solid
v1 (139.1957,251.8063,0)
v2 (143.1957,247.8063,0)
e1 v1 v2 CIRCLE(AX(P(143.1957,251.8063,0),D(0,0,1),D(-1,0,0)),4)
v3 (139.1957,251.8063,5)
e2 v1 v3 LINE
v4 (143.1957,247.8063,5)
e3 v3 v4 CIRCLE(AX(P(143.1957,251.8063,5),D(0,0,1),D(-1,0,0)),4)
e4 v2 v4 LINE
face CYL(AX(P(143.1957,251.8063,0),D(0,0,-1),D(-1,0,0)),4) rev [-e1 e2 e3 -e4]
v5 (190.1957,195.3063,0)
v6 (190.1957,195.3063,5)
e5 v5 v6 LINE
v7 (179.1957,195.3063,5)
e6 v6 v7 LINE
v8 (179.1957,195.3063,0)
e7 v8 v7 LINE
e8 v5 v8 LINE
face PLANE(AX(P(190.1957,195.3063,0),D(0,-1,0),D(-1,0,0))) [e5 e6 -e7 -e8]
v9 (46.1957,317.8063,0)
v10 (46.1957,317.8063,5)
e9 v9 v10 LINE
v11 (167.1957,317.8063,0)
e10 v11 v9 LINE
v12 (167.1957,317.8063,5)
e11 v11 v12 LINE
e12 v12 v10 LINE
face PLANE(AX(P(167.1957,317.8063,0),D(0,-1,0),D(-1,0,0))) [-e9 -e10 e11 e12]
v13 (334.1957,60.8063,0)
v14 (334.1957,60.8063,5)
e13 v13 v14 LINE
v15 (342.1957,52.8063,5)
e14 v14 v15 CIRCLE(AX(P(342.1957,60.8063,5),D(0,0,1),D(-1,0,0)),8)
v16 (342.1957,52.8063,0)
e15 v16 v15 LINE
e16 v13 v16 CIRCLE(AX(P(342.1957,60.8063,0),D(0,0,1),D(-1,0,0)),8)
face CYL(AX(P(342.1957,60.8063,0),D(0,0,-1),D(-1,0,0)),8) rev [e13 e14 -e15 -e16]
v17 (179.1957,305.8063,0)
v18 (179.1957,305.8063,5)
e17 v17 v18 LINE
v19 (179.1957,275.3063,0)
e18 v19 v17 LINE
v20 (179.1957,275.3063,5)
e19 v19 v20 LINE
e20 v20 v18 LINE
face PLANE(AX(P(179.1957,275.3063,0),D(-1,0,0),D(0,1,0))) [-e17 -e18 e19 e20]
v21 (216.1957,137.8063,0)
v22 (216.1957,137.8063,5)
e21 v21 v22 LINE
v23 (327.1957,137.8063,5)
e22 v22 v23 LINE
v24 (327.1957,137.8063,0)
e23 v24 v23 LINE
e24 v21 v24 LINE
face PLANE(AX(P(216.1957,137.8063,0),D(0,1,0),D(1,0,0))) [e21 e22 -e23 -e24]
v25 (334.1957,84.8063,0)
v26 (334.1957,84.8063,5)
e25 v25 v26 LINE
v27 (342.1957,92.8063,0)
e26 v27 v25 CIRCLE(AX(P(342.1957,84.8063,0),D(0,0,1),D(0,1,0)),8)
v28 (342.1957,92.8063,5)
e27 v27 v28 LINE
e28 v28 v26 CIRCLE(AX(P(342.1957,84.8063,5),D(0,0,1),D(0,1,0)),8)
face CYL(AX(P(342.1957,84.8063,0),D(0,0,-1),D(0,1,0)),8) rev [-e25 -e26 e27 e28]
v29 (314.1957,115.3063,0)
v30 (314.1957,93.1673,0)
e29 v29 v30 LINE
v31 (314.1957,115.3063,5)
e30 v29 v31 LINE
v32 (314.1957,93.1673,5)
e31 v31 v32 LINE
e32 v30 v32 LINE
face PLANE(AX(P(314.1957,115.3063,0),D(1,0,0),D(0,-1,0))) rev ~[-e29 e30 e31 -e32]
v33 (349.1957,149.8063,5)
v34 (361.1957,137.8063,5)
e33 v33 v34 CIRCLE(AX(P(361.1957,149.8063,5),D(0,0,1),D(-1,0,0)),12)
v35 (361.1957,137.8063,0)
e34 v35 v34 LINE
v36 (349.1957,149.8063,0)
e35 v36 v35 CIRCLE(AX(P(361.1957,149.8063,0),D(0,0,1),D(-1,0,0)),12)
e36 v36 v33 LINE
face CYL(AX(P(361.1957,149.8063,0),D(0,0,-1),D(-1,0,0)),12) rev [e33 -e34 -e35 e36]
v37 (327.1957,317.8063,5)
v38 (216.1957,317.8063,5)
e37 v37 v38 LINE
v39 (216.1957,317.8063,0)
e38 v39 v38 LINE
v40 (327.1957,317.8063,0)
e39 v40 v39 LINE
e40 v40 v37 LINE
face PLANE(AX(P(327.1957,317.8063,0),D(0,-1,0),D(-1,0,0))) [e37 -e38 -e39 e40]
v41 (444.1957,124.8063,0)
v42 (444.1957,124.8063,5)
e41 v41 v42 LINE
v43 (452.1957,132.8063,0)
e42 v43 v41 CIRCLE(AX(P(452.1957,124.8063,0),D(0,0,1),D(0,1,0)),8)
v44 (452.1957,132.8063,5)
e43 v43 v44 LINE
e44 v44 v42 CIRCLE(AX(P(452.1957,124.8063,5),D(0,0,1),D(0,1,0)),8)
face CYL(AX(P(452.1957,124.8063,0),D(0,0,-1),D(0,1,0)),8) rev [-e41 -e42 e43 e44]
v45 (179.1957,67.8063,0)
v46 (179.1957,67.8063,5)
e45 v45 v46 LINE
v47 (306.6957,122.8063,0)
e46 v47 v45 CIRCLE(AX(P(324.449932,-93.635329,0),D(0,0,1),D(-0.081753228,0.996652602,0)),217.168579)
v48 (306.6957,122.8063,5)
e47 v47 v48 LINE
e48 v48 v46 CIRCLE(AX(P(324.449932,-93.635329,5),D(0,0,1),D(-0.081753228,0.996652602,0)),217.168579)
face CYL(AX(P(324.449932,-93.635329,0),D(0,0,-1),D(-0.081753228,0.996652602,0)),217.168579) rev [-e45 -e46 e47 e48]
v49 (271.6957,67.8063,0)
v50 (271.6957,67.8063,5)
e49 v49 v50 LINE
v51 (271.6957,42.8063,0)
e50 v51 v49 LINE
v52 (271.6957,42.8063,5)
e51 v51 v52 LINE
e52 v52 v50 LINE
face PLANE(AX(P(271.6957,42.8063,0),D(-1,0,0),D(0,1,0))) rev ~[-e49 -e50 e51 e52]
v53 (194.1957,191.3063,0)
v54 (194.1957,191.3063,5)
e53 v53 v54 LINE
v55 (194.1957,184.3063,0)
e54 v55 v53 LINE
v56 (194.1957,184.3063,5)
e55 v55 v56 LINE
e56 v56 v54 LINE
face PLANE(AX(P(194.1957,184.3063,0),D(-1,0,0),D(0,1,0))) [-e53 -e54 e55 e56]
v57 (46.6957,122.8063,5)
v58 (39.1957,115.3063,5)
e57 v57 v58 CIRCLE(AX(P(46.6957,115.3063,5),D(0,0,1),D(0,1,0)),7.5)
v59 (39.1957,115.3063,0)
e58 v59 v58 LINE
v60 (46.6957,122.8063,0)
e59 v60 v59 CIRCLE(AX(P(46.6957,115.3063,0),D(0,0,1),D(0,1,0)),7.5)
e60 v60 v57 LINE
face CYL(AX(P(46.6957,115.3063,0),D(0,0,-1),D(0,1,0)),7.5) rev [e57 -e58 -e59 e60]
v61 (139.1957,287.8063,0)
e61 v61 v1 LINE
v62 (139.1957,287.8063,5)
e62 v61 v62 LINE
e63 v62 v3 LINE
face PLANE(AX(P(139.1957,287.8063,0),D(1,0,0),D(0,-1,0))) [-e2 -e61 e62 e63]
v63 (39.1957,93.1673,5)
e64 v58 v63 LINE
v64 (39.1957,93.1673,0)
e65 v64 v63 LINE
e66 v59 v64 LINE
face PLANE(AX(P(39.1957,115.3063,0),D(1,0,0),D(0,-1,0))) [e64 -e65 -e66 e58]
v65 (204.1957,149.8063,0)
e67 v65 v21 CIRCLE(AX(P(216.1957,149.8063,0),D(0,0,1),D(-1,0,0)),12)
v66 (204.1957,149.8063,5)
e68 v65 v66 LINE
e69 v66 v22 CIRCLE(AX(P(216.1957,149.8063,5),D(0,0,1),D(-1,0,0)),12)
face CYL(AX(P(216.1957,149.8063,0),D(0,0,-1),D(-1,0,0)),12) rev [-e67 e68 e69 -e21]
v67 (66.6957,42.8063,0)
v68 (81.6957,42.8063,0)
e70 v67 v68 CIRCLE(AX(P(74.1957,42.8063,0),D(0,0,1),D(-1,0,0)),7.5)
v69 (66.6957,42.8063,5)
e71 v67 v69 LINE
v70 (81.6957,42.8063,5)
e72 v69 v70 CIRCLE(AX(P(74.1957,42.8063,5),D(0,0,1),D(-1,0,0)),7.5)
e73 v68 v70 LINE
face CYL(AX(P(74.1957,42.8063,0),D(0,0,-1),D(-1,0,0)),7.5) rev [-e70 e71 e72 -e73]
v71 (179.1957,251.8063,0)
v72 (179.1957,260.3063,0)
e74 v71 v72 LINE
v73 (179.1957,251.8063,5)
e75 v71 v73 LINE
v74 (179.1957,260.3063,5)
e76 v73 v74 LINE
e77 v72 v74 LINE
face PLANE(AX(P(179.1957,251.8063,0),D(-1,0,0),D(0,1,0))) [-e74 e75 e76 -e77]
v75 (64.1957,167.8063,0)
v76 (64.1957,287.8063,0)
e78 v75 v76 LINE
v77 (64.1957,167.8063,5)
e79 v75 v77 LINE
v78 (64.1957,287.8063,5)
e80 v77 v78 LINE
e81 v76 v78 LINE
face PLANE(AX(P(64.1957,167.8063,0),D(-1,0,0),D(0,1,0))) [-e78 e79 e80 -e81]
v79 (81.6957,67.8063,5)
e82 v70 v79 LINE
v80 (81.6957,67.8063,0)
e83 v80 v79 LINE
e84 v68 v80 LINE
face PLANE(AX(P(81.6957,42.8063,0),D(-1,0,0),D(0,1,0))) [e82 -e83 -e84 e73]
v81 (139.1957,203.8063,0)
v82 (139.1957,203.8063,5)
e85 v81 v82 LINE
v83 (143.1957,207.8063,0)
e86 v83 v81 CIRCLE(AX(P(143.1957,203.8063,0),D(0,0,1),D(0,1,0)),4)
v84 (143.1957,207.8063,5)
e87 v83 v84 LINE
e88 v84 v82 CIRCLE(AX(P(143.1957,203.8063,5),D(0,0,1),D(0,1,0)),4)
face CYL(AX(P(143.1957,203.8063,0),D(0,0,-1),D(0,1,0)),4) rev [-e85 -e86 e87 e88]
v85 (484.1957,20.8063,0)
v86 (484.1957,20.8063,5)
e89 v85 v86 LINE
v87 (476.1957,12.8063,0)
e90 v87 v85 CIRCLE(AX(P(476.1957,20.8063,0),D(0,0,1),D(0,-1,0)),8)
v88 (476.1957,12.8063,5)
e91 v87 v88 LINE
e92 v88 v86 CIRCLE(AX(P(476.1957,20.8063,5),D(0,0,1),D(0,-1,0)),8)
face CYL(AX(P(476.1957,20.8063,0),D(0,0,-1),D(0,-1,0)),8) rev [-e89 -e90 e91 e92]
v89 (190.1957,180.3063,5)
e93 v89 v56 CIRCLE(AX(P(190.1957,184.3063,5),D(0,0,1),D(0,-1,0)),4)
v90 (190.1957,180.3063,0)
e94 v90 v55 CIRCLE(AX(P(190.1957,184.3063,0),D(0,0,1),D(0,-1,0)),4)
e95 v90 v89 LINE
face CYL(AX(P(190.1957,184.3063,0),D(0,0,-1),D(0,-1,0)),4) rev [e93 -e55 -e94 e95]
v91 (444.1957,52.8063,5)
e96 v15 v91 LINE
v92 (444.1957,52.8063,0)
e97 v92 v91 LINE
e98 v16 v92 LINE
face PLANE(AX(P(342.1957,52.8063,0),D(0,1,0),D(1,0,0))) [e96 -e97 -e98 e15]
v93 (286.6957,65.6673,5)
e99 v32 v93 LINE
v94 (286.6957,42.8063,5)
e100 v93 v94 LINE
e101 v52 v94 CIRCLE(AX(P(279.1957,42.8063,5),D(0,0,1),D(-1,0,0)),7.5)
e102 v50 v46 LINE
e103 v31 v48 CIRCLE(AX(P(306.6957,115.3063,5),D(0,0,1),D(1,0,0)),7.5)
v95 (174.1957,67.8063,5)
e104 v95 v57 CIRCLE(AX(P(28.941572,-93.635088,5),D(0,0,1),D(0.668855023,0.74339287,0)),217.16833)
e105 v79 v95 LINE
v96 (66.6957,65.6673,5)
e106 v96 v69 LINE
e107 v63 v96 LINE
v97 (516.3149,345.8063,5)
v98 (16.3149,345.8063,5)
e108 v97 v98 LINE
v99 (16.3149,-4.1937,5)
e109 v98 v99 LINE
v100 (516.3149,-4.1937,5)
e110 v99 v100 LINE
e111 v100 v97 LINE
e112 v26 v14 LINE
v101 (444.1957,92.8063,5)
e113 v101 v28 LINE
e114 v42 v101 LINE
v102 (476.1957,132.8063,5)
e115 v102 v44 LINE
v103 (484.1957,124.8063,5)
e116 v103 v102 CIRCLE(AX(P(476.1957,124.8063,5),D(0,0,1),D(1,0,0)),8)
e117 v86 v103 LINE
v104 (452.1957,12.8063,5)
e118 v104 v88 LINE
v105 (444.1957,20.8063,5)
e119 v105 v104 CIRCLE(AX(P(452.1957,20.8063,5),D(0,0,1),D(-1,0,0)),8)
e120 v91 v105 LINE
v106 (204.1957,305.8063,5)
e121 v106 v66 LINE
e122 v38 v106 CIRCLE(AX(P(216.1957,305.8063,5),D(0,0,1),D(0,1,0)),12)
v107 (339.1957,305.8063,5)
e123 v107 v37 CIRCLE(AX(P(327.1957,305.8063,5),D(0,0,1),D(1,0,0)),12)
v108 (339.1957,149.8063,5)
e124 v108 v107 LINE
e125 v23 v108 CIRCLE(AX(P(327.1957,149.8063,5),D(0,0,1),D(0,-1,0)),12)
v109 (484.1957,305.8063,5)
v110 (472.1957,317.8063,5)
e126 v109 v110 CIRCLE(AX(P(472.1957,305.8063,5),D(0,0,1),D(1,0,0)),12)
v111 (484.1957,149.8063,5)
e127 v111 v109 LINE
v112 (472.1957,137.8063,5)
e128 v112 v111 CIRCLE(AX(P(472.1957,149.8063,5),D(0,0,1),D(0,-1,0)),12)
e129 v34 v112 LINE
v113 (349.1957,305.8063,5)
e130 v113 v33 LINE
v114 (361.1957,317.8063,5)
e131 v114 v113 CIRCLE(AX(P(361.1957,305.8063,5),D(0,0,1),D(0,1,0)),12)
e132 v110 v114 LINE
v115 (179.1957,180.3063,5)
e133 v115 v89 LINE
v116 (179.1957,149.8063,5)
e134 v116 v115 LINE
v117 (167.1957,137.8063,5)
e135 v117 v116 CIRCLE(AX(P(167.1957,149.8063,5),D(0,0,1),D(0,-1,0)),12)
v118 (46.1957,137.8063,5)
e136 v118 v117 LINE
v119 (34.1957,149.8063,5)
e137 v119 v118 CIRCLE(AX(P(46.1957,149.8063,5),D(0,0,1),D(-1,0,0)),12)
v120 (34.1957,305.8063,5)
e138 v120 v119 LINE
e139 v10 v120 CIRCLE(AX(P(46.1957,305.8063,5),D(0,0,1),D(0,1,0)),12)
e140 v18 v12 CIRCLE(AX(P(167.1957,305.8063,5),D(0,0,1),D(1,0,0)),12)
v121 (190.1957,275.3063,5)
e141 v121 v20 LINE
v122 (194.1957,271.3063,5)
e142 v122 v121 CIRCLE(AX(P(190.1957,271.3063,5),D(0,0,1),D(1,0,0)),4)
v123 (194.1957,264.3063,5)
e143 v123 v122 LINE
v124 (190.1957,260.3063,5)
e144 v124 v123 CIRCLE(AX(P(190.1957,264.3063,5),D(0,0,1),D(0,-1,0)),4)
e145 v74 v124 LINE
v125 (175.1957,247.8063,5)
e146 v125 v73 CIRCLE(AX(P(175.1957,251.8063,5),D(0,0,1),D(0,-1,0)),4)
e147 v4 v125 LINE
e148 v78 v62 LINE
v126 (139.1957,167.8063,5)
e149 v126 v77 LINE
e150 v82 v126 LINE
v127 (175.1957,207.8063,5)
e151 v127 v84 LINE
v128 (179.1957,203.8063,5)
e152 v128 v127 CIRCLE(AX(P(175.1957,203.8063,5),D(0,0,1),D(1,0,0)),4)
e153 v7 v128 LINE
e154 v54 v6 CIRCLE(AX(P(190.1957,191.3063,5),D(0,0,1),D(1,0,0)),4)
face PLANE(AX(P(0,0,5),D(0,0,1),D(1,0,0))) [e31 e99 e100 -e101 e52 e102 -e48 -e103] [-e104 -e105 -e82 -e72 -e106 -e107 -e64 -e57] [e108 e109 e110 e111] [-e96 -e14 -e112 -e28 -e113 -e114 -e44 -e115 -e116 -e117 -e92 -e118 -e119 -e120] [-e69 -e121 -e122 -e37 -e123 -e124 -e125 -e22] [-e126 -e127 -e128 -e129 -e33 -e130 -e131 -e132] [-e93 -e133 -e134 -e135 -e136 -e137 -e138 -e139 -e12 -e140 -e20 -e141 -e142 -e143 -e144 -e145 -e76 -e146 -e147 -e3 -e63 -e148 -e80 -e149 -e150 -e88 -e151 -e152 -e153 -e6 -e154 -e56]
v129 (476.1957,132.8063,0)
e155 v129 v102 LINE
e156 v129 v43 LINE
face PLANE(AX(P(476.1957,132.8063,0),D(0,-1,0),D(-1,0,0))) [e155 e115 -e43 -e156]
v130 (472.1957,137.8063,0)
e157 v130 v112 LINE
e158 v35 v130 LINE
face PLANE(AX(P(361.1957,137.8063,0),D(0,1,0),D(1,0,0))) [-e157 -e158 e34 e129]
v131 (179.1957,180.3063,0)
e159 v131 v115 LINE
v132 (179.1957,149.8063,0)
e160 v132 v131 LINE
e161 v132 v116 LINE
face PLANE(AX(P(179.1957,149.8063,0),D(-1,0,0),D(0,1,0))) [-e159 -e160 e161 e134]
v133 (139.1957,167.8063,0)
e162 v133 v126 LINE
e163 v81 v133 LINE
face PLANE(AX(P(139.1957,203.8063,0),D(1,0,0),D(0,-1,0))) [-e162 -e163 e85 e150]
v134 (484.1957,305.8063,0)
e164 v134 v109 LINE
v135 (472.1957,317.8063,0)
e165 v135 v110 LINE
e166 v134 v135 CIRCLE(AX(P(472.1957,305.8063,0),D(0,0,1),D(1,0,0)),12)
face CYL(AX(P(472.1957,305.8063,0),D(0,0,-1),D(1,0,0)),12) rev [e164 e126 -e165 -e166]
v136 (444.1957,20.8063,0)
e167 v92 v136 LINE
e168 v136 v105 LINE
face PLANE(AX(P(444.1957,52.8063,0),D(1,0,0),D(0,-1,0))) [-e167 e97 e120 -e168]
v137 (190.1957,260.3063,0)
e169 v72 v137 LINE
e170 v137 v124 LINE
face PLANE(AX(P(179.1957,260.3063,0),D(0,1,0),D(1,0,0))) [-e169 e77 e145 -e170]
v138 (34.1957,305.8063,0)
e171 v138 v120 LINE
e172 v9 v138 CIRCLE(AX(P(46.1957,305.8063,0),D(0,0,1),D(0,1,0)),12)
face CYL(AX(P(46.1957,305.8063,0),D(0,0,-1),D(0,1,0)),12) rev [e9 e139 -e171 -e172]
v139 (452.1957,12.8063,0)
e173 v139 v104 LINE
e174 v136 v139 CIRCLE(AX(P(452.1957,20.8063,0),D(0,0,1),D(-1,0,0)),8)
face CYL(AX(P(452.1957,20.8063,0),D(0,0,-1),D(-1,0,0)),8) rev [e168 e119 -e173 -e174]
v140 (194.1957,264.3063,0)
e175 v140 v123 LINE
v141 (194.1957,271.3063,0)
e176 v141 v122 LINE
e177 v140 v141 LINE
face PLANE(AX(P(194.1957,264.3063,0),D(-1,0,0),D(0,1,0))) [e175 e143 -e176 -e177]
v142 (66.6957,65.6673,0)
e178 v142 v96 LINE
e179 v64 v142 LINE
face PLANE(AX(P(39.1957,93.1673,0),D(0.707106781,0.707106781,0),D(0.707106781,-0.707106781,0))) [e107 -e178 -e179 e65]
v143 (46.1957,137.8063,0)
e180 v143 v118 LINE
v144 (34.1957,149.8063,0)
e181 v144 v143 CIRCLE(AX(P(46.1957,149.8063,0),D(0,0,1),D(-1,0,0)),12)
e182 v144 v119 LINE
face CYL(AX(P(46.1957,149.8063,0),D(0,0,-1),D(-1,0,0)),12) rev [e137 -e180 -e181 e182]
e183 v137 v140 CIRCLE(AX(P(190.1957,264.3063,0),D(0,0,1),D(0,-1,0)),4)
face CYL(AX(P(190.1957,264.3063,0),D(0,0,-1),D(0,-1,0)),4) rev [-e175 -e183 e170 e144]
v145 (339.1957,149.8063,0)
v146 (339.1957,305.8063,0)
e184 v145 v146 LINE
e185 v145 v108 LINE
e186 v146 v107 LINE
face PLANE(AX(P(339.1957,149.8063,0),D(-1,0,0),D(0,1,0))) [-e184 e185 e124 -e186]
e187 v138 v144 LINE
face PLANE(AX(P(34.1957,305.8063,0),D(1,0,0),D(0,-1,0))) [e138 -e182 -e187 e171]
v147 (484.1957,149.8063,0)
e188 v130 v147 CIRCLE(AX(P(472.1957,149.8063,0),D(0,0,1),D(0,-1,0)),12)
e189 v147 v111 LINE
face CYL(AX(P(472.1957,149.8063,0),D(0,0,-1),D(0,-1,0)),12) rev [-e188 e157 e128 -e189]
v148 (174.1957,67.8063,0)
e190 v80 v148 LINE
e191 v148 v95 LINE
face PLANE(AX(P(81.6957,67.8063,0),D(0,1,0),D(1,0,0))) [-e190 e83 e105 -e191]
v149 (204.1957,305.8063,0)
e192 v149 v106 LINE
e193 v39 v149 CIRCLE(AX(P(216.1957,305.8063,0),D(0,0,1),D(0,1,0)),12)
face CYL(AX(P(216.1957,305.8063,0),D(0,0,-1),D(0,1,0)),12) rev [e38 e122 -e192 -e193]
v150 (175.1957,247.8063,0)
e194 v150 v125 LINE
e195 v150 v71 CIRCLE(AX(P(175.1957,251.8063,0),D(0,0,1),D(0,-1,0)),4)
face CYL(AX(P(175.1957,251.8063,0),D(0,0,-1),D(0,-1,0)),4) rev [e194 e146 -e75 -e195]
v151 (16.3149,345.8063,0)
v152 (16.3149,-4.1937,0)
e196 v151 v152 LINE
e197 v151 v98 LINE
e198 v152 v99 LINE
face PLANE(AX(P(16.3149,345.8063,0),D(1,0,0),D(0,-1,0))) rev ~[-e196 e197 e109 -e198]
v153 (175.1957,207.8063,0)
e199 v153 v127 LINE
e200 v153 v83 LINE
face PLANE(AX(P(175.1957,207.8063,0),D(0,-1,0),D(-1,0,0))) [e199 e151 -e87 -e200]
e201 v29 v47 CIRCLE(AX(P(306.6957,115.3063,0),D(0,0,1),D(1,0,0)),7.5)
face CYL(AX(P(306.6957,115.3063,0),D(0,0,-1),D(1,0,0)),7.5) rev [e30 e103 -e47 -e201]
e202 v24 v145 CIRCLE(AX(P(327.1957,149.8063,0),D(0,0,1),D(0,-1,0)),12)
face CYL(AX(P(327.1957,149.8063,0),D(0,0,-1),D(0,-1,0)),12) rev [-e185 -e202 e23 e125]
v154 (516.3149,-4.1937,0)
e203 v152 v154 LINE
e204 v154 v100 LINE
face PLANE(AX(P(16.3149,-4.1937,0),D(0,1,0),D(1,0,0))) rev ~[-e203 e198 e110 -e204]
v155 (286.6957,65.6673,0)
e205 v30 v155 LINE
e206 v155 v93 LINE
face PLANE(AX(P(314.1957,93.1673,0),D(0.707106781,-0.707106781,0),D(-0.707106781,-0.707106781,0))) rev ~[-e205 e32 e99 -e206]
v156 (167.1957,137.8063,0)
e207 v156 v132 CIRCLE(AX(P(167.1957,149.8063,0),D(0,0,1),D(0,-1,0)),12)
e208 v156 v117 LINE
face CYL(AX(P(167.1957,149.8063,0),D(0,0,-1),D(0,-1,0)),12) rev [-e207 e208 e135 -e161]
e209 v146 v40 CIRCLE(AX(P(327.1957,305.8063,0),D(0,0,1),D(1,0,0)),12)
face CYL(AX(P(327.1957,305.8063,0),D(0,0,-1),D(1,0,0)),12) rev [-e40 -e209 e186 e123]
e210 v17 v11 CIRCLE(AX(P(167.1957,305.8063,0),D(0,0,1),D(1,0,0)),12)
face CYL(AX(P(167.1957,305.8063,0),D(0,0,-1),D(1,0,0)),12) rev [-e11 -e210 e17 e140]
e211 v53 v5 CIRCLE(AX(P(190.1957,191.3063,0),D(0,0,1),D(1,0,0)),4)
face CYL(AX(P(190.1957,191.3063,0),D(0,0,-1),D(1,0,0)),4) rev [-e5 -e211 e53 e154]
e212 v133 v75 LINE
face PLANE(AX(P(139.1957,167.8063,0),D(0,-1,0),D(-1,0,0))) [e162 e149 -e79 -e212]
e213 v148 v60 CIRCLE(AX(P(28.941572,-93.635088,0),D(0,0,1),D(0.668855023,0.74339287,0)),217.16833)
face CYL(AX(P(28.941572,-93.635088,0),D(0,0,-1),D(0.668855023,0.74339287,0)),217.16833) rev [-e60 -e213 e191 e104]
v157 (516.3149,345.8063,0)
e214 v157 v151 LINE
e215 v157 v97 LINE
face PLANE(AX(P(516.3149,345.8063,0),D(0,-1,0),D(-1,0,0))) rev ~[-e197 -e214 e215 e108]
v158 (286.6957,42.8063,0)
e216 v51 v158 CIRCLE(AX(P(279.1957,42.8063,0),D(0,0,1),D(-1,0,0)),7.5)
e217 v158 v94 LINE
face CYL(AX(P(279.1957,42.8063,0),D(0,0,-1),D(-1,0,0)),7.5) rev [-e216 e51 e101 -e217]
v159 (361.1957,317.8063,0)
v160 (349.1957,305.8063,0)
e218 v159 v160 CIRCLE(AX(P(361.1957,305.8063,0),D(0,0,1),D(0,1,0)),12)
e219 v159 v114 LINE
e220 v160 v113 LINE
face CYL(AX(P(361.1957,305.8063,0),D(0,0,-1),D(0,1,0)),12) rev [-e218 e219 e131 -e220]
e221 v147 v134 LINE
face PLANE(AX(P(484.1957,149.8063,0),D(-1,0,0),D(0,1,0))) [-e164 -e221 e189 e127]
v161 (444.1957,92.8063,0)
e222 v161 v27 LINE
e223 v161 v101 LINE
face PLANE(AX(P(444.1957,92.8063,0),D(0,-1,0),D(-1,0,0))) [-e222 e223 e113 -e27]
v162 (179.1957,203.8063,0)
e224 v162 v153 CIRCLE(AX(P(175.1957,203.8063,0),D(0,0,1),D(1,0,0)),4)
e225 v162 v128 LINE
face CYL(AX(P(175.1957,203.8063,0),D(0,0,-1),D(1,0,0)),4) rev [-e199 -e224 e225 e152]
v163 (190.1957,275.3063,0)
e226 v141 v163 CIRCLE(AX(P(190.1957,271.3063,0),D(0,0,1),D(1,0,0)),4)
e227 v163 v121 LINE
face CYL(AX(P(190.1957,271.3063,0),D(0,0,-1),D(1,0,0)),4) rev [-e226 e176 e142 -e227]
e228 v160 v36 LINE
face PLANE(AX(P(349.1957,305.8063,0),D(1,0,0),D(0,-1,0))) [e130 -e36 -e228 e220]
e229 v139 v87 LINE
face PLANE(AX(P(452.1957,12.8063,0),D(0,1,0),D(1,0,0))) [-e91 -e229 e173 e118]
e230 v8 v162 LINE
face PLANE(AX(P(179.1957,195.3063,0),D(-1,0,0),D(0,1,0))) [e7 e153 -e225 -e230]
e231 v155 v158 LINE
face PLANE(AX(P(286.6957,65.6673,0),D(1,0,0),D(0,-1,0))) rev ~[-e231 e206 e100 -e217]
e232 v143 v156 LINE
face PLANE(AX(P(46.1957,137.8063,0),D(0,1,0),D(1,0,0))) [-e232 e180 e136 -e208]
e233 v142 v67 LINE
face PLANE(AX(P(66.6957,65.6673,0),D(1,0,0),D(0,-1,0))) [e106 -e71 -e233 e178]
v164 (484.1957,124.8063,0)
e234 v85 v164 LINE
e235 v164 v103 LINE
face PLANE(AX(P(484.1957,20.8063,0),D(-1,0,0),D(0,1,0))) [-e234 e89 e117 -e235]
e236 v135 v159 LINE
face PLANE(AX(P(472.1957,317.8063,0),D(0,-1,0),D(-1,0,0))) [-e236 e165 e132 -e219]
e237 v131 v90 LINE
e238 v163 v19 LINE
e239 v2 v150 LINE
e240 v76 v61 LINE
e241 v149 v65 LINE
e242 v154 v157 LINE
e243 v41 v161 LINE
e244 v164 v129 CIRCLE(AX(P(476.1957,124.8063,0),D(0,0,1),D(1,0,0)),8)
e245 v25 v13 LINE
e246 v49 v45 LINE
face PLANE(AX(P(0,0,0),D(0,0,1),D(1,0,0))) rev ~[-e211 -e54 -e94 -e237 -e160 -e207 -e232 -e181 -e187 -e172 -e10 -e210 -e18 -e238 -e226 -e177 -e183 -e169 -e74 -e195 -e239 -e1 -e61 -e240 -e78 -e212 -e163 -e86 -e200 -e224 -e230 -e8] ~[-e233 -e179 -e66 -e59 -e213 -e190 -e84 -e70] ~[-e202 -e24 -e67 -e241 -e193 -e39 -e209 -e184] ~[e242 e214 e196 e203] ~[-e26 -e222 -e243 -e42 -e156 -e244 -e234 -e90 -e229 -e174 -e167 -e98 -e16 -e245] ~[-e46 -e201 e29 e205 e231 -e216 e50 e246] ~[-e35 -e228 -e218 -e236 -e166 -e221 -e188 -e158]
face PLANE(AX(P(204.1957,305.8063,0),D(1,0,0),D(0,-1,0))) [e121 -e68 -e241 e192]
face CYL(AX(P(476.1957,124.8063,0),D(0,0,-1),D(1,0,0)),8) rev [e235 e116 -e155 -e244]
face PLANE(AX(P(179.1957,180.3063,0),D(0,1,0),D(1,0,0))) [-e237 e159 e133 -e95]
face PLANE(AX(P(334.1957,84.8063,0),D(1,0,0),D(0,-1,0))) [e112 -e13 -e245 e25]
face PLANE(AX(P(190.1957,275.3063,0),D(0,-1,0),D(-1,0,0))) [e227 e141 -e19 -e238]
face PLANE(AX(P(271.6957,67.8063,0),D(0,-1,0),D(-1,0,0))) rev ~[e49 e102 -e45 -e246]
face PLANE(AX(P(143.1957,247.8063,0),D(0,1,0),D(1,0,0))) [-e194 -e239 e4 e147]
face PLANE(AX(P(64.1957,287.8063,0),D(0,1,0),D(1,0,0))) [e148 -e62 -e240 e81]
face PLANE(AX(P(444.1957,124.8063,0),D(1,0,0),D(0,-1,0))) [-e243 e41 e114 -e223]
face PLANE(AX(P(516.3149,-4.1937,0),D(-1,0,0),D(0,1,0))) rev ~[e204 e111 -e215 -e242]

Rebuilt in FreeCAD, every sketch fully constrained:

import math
import FreeCAD as App
import Part
import Sketcher
from FreeCAD import Vector
Q = App.Units.Quantity

doc = App.newDocument("Part")
params = doc.addObject("Spreadsheet::Sheet", "Params")
for row, (alias, value) in enumerate([
    ("sketch1_radius", "4 mm"),
    ("sketch1_radius2", "12 mm"),
    ("sketch1_radius3", "7.5 mm"),
    ("sketch1_width", "500 mm"),
    ("sketch1_width2", "75 mm"),
    ("pad1_length", "5 mm"),
], start=1):
    params.set(f"A{row}", alias)
    params.set(f"B{row}", "=" + value)
    params.setAlias(f"B{row}", alias)

body = doc.addObject("PartDesign::Body", "Body")

sketch1 = doc.addObject("Sketcher::SketchObject", "Sketch")
body.addObject(sketch1)
sketch1.AttachmentSupport = (doc.XY_Plane, [""])
sketch1.MapMode = "FlatFace"
sketch1.addGeometry(Part.LineSegment(Vector(516.3149, -4.1937, 0), Vector(516.3149, 345.8063, 0)), False)
sketch1.addGeometry(Part.LineSegment(Vector(516.3149, 345.8063, 0), Vector(16.3149, 345.8063, 0)), False)
sketch1.addGeometry(Part.LineSegment(Vector(16.3149, 345.8063, 0), Vector(16.3149, -4.1937, 0)), False)
sketch1.addGeometry(Part.LineSegment(Vector(16.3149, -4.1937, 0), Vector(516.3149, -4.1937, 0)), False)
sketch1.addGeometry(Part.LineSegment(Vector(66.6957, 42.8063, 0), Vector(66.6957, 65.6673, 0)), False)
sketch1.addGeometry(Part.LineSegment(Vector(66.6957, 65.6673, 0), Vector(39.1957, 93.1673, 0)), False)
sketch1.addGeometry(Part.LineSegment(Vector(39.1957, 93.1673, 0), Vector(39.1957, 115.3063, 0)), False)
sketch1.addGeometry(Part.ArcOfCircle(Part.Circle(Vector(46.6957, 115.3063, 0), Vector(0, 0, 1), 7.5), math.radians(90), math.radians(180)), False)
sketch1.addGeometry(Part.ArcOfCircle(Part.Circle(Vector(28.9415, -93.6352, 0), Vector(0, 0, 1), 217.168461), math.radians(48.021249), math.radians(85.310657)), False)
sketch1.addGeometry(Part.LineSegment(Vector(174.1957, 67.8063, 0), Vector(81.6957, 67.8063, 0)), False)
sketch1.addGeometry(Part.LineSegment(Vector(81.6957, 67.8063, 0), Vector(81.6957, 42.8063, 0)), False)
sketch1.addGeometry(Part.ArcOfCircle(Part.Circle(Vector(74.1957, 42.8063, 0), Vector(0, 0, 1), 7.5), math.radians(180), math.radians(360)), False)
sketch1.addGeometry(Part.LineSegment(Vector(314.1957, 93.1673, 0), Vector(286.6957, 65.6673, 0)), False)
sketch1.addGeometry(Part.LineSegment(Vector(286.6957, 65.6673, 0), Vector(286.6957, 42.8063, 0)), False)
sketch1.addGeometry(Part.ArcOfCircle(Part.Circle(Vector(279.1957, 42.8063, 0), Vector(0, 0, 1), 7.5), math.radians(180), math.radians(360)), False)
sketch1.addGeometry(Part.LineSegment(Vector(271.6957, 42.8063, 0), Vector(271.6957, 67.8063, 0)), False)
sketch1.addGeometry(Part.LineSegment(Vector(271.6957, 67.8063, 0), Vector(179.1957, 67.8063, 0)), False)
sketch1.addGeometry(Part.ArcOfCircle(Part.Circle(Vector(324.4499, -93.6352, 0), Vector(0, 0, 1), 217.168447), math.radians(94.689343), math.radians(131.978751)), False)
sketch1.addGeometry(Part.ArcOfCircle(Part.Circle(Vector(306.6957, 115.3063, 0), Vector(0, 0, 1), 7.5), math.radians(0), math.radians(90)), False)
sketch1.addGeometry(Part.LineSegment(Vector(314.1957, 115.3063, 0), Vector(314.1957, 93.1673, 0)), False)
sketch1.addGeometry(Part.ArcOfCircle(Part.Circle(Vector(476.1957, 124.8063, 0), Vector(0, 0, 1), 8), math.radians(0), math.radians(90)), False)
sketch1.addGeometry(Part.LineSegment(Vector(484.1957, 124.8063, 0), Vector(484.1957, 20.8063, 0)), False)
sketch1.addGeometry(Part.ArcOfCircle(Part.Circle(Vector(476.1957, 20.8063, 0), Vector(0, 0, 1), 8), math.radians(-90), math.radians(0)), False)
sketch1.addGeometry(Part.LineSegment(Vector(476.1957, 12.8063, 0), Vector(452.1957, 12.8063, 0)), False)
sketch1.addGeometry(Part.ArcOfCircle(Part.Circle(Vector(452.1957, 20.8063, 0), Vector(0, 0, 1), 8), math.radians(180), math.radians(270)), False)
sketch1.addGeometry(Part.LineSegment(Vector(444.1957, 20.8063, 0), Vector(444.1957, 52.8063, 0)), False)
sketch1.addGeometry(Part.LineSegment(Vector(444.1957, 52.8063, 0), Vector(342.1957, 52.8063, 0)), False)
sketch1.addGeometry(Part.ArcOfCircle(Part.Circle(Vector(342.1957, 60.8063, 0), Vector(0, 0, 1), 8), math.radians(180), math.radians(270)), False)
sketch1.addGeometry(Part.LineSegment(Vector(334.1957, 60.8063, 0), Vector(334.1957, 84.8063, 0)), False)
sketch1.addGeometry(Part.ArcOfCircle(Part.Circle(Vector(342.1957, 84.8063, 0), Vector(0, 0, 1), 8), math.radians(90), math.radians(180)), False)
sketch1.addGeometry(Part.LineSegment(Vector(342.1957, 92.8063, 0), Vector(444.1957, 92.8063, 0)), False)
sketch1.addGeometry(Part.LineSegment(Vector(444.1957, 92.8063, 0), Vector(444.1957, 124.8063, 0)), False)
sketch1.addGeometry(Part.ArcOfCircle(Part.Circle(Vector(452.1957, 124.8063, 0), Vector(0, 0, 1), 8), math.radians(90), math.radians(180)), False)
sketch1.addGeometry(Part.LineSegment(Vector(452.1957, 132.8063, 0), Vector(476.1957, 132.8063, 0)), False)
sketch1.addGeometry(Part.ArcOfCircle(Part.Circle(Vector(143.1957, 251.8063, 0), Vector(0, 0, 1), 4), math.radians(180), math.radians(270)), False)
sketch1.addGeometry(Part.LineSegment(Vector(139.1957, 251.8063, 0), Vector(139.1957, 287.8063, 0)), False)
sketch1.addGeometry(Part.LineSegment(Vector(139.1957, 287.8063, 0), Vector(64.1957, 287.8063, 0)), False)
sketch1.addGeometry(Part.LineSegment(Vector(64.1957, 287.8063, 0), Vector(64.1957, 167.8063, 0)), False)
sketch1.addGeometry(Part.LineSegment(Vector(64.1957, 167.8063, 0), Vector(139.1957, 167.8063, 0)), False)
sketch1.addGeometry(Part.LineSegment(Vector(139.1957, 167.8063, 0), Vector(139.1957, 203.8063, 0)), False)
sketch1.addGeometry(Part.ArcOfCircle(Part.Circle(Vector(143.1957, 203.8063, 0), Vector(0, 0, 1), 4), math.radians(90), math.radians(180)), False)
sketch1.addGeometry(Part.LineSegment(Vector(143.1957, 207.8063, 0), Vector(175.1957, 207.8063, 0)), False)
sketch1.addGeometry(Part.ArcOfCircle(Part.Circle(Vector(175.1957, 203.8063, 0), Vector(0, 0, 1), 4), math.radians(0), math.radians(90)), False)
sketch1.addGeometry(Part.LineSegment(Vector(179.1957, 203.8063, 0), Vector(179.1957, 195.3063, 0)), False)
sketch1.addGeometry(Part.LineSegment(Vector(179.1957, 195.3063, 0), Vector(190.1957, 195.3063, 0)), False)
sketch1.addGeometry(Part.ArcOfCircle(Part.Circle(Vector(190.1957, 191.3063, 0), Vector(0, 0, 1), 4), math.radians(0), math.radians(90)), False)
sketch1.addGeometry(Part.LineSegment(Vector(194.1957, 191.3063, 0), Vector(194.1957, 184.3063, 0)), False)
sketch1.addGeometry(Part.ArcOfCircle(Part.Circle(Vector(190.1957, 184.3063, 0), Vector(0, 0, 1), 4), math.radians(-90), math.radians(0)), False)
sketch1.addGeometry(Part.LineSegment(Vector(190.1957, 180.3063, 0), Vector(179.1957, 180.3063, 0)), False)
sketch1.addGeometry(Part.LineSegment(Vector(179.1957, 180.3063, 0), Vector(179.1957, 149.8063, 0)), False)
sketch1.addGeometry(Part.ArcOfCircle(Part.Circle(Vector(167.1957, 149.8063, 0), Vector(0, 0, 1), 12), math.radians(-90), math.radians(0)), False)
sketch1.addGeometry(Part.LineSegment(Vector(167.1957, 137.8063, 0), Vector(46.1957, 137.8063, 0)), False)
sketch1.addGeometry(Part.ArcOfCircle(Part.Circle(Vector(46.1957, 149.8063, 0), Vector(0, 0, 1), 12), math.radians(180), math.radians(270)), False)
sketch1.addGeometry(Part.LineSegment(Vector(34.1957, 149.8063, 0), Vector(34.1957, 305.8063, 0)), False)
sketch1.addGeometry(Part.ArcOfCircle(Part.Circle(Vector(46.1957, 305.8063, 0), Vector(0, 0, 1), 12), math.radians(90), math.radians(180)), False)
sketch1.addGeometry(Part.LineSegment(Vector(46.1957, 317.8063, 0), Vector(167.1957, 317.8063, 0)), False)
sketch1.addGeometry(Part.ArcOfCircle(Part.Circle(Vector(167.1957, 305.8063, 0), Vector(0, 0, 1), 12), math.radians(0), math.radians(90)), False)
sketch1.addGeometry(Part.LineSegment(Vector(179.1957, 305.8063, 0), Vector(179.1957, 275.3063, 0)), False)
sketch1.addGeometry(Part.LineSegment(Vector(179.1957, 275.3063, 0), Vector(190.1957, 275.3063, 0)), False)
sketch1.addGeometry(Part.ArcOfCircle(Part.Circle(Vector(190.1957, 271.3063, 0), Vector(0, 0, 1), 4), math.radians(0), math.radians(90)), False)
sketch1.addGeometry(Part.LineSegment(Vector(194.1957, 271.3063, 0), Vector(194.1957, 264.3063, 0)), False)
sketch1.addGeometry(Part.ArcOfCircle(Part.Circle(Vector(190.1957, 264.3063, 0), Vector(0, 0, 1), 4), math.radians(-90), math.radians(0)), False)
sketch1.addGeometry(Part.LineSegment(Vector(190.1957, 260.3063, 0), Vector(179.1957, 260.3063, 0)), False)
sketch1.addGeometry(Part.LineSegment(Vector(179.1957, 260.3063, 0), Vector(179.1957, 251.8063, 0)), False)
sketch1.addGeometry(Part.ArcOfCircle(Part.Circle(Vector(175.1957, 251.8063, 0), Vector(0, 0, 1), 4), math.radians(-90), math.radians(0)), False)
sketch1.addGeometry(Part.LineSegment(Vector(175.1957, 247.8063, 0), Vector(143.1957, 247.8063, 0)), False)
sketch1.addGeometry(Part.ArcOfCircle(Part.Circle(Vector(216.1957, 149.8063, 0), Vector(0, 0, 1), 12), math.radians(180), math.radians(270)), False)
sketch1.addGeometry(Part.LineSegment(Vector(204.1957, 149.8063, 0), Vector(204.1957, 305.8063, 0)), False)
sketch1.addGeometry(Part.ArcOfCircle(Part.Circle(Vector(216.1957, 305.8063, 0), Vector(0, 0, 1), 12), math.radians(90), math.radians(180)), False)
sketch1.addGeometry(Part.LineSegment(Vector(216.1957, 317.8063, 0), Vector(327.1957, 317.8063, 0)), False)
sketch1.addGeometry(Part.ArcOfCircle(Part.Circle(Vector(327.1957, 305.8063, 0), Vector(0, 0, 1), 12), math.radians(0), math.radians(90)), False)
sketch1.addGeometry(Part.LineSegment(Vector(339.1957, 305.8063, 0), Vector(339.1957, 149.8063, 0)), False)
sketch1.addGeometry(Part.ArcOfCircle(Part.Circle(Vector(327.1957, 149.8063, 0), Vector(0, 0, 1), 12), math.radians(-90), math.radians(0)), False)
sketch1.addGeometry(Part.LineSegment(Vector(327.1957, 137.8063, 0), Vector(216.1957, 137.8063, 0)), False)
sketch1.addGeometry(Part.ArcOfCircle(Part.Circle(Vector(361.1957, 149.8063, 0), Vector(0, 0, 1), 12), math.radians(180), math.radians(270)), False)
sketch1.addGeometry(Part.LineSegment(Vector(349.1957, 149.8063, 0), Vector(349.1957, 305.8063, 0)), False)
sketch1.addGeometry(Part.ArcOfCircle(Part.Circle(Vector(361.1957, 305.8063, 0), Vector(0, 0, 1), 12), math.radians(90), math.radians(180)), False)
sketch1.addGeometry(Part.LineSegment(Vector(361.1957, 317.8063, 0), Vector(472.1957, 317.8063, 0)), False)
sketch1.addGeometry(Part.ArcOfCircle(Part.Circle(Vector(472.1957, 305.8063, 0), Vector(0, 0, 1), 12), math.radians(0), math.radians(90)), False)
sketch1.addGeometry(Part.LineSegment(Vector(484.1957, 305.8063, 0), Vector(484.1957, 149.8063, 0)), False)
sketch1.addGeometry(Part.ArcOfCircle(Part.Circle(Vector(472.1957, 149.8063, 0), Vector(0, 0, 1), 12), math.radians(-90), math.radians(0)), False)
sketch1.addGeometry(Part.LineSegment(Vector(472.1957, 137.8063, 0), Vector(361.1957, 137.8063, 0)), False)
sketch1.addConstraint(Sketcher.Constraint("Coincident", 0, 2, 1, 1))
sketch1.addConstraint(Sketcher.Constraint("Coincident", 1, 2, 2, 1))
sketch1.addConstraint(Sketcher.Constraint("Coincident", 2, 2, 3, 1))
sketch1.addConstraint(Sketcher.Constraint("Coincident", 3, 2, 0, 1))
sketch1.addConstraint(Sketcher.Constraint("Coincident", 4, 2, 5, 1))
sketch1.addConstraint(Sketcher.Constraint("Coincident", 5, 2, 6, 1))
sketch1.addConstraint(Sketcher.Constraint("Tangent", 6, 2, 7, 2))
sketch1.addConstraint(Sketcher.Constraint("Coincident", 7, 1, 8, 2))
sketch1.addConstraint(Sketcher.Constraint("Coincident", 8, 1, 9, 1))
sketch1.addConstraint(Sketcher.Constraint("Coincident", 9, 2, 10, 1))
sketch1.addConstraint(Sketcher.Constraint("Tangent", 10, 2, 11, 2))
sketch1.addConstraint(Sketcher.Constraint("Tangent", 11, 1, 4, 1))
sketch1.addConstraint(Sketcher.Constraint("Coincident", 12, 2, 13, 1))
sketch1.addConstraint(Sketcher.Constraint("Tangent", 13, 2, 14, 2))
sketch1.addConstraint(Sketcher.Constraint("Tangent", 14, 1, 15, 1))
sketch1.addConstraint(Sketcher.Constraint("Coincident", 15, 2, 16, 1))
sketch1.addConstraint(Sketcher.Constraint("Coincident", 16, 2, 17, 2))
sketch1.addConstraint(Sketcher.Constraint("Coincident", 17, 1, 18, 2))
sketch1.addConstraint(Sketcher.Constraint("Tangent", 18, 1, 19, 1))
sketch1.addConstraint(Sketcher.Constraint("Coincident", 19, 2, 12, 1))
sketch1.addConstraint(Sketcher.Constraint("Tangent", 20, 1, 21, 1))
sketch1.addConstraint(Sketcher.Constraint("Tangent", 21, 2, 22, 2))
sketch1.addConstraint(Sketcher.Constraint("Tangent", 22, 1, 23, 1))
sketch1.addConstraint(Sketcher.Constraint("Tangent", 23, 2, 24, 2))
sketch1.addConstraint(Sketcher.Constraint("Tangent", 24, 1, 25, 1))
sketch1.addConstraint(Sketcher.Constraint("Coincident", 25, 2, 26, 1))
sketch1.addConstraint(Sketcher.Constraint("Tangent", 26, 2, 27, 2))
sketch1.addConstraint(Sketcher.Constraint("Tangent", 27, 1, 28, 1))
sketch1.addConstraint(Sketcher.Constraint("Tangent", 28, 2, 29, 2))
sketch1.addConstraint(Sketcher.Constraint("Tangent", 29, 1, 30, 1))
sketch1.addConstraint(Sketcher.Constraint("Coincident", 30, 2, 31, 1))
sketch1.addConstraint(Sketcher.Constraint("Tangent", 31, 2, 32, 2))
sketch1.addConstraint(Sketcher.Constraint("Tangent", 32, 1, 33, 1))
sketch1.addConstraint(Sketcher.Constraint("Tangent", 33, 2, 20, 2))
sketch1.addConstraint(Sketcher.Constraint("Tangent", 34, 1, 35, 1))
sketch1.addConstraint(Sketcher.Constraint("Coincident", 35, 2, 36, 1))
sketch1.addConstraint(Sketcher.Constraint("Coincident", 36, 2, 37, 1))
sketch1.addConstraint(Sketcher.Constraint("Coincident", 37, 2, 38, 1))
sketch1.addConstraint(Sketcher.Constraint("Coincident", 38, 2, 39, 1))
sketch1.addConstraint(Sketcher.Constraint("Tangent", 39, 2, 40, 2))
sketch1.addConstraint(Sketcher.Constraint("Tangent", 40, 1, 41, 1))
sketch1.addConstraint(Sketcher.Constraint("Tangent", 41, 2, 42, 2))
sketch1.addConstraint(Sketcher.Constraint("Tangent", 42, 1, 43, 1))
sketch1.addConstraint(Sketcher.Constraint("Coincident", 43, 2, 44, 1))
sketch1.addConstraint(Sketcher.Constraint("Tangent", 44, 2, 45, 2))
sketch1.addConstraint(Sketcher.Constraint("Tangent", 45, 1, 46, 1))
sketch1.addConstraint(Sketcher.Constraint("Tangent", 46, 2, 47, 2))
sketch1.addConstraint(Sketcher.Constraint("Tangent", 47, 1, 48, 1))
sketch1.addConstraint(Sketcher.Constraint("Coincident", 48, 2, 49, 1))
sketch1.addConstraint(Sketcher.Constraint("Tangent", 49, 2, 50, 2))
sketch1.addConstraint(Sketcher.Constraint("Tangent", 50, 1, 51, 1))
sketch1.addConstraint(Sketcher.Constraint("Tangent", 51, 2, 52, 2))
sketch1.addConstraint(Sketcher.Constraint("Tangent", 52, 1, 53, 1))
sketch1.addConstraint(Sketcher.Constraint("Tangent", 53, 2, 54, 2))
sketch1.addConstraint(Sketcher.Constraint("Tangent", 54, 1, 55, 1))
sketch1.addConstraint(Sketcher.Constraint("Tangent", 55, 2, 56, 2))
sketch1.addConstraint(Sketcher.Constraint("Tangent", 56, 1, 57, 1))
sketch1.addConstraint(Sketcher.Constraint("Coincident", 57, 2, 58, 1))
sketch1.addConstraint(Sketcher.Constraint("Tangent", 58, 2, 59, 2))
sketch1.addConstraint(Sketcher.Constraint("Tangent", 59, 1, 60, 1))
sketch1.addConstraint(Sketcher.Constraint("Tangent", 60, 2, 61, 2))
sketch1.addConstraint(Sketcher.Constraint("Tangent", 61, 1, 62, 1))
sketch1.addConstraint(Sketcher.Constraint("Coincident", 62, 2, 63, 1))
sketch1.addConstraint(Sketcher.Constraint("Tangent", 63, 2, 64, 2))
sketch1.addConstraint(Sketcher.Constraint("Tangent", 64, 1, 65, 1))
sketch1.addConstraint(Sketcher.Constraint("Tangent", 65, 2, 34, 2))
sketch1.addConstraint(Sketcher.Constraint("Tangent", 66, 1, 67, 1))
sketch1.addConstraint(Sketcher.Constraint("Tangent", 67, 2, 68, 2))
sketch1.addConstraint(Sketcher.Constraint("Tangent", 68, 1, 69, 1))
sketch1.addConstraint(Sketcher.Constraint("Tangent", 69, 2, 70, 2))
sketch1.addConstraint(Sketcher.Constraint("Tangent", 70, 1, 71, 1))
sketch1.addConstraint(Sketcher.Constraint("Tangent", 71, 2, 72, 2))
sketch1.addConstraint(Sketcher.Constraint("Tangent", 72, 1, 73, 1))
sketch1.addConstraint(Sketcher.Constraint("Tangent", 73, 2, 66, 2))
sketch1.addConstraint(Sketcher.Constraint("Tangent", 74, 1, 75, 1))
sketch1.addConstraint(Sketcher.Constraint("Tangent", 75, 2, 76, 2))
sketch1.addConstraint(Sketcher.Constraint("Tangent", 76, 1, 77, 1))
sketch1.addConstraint(Sketcher.Constraint("Tangent", 77, 2, 78, 2))
sketch1.addConstraint(Sketcher.Constraint("Tangent", 78, 1, 79, 1))
sketch1.addConstraint(Sketcher.Constraint("Tangent", 79, 2, 80, 2))
sketch1.addConstraint(Sketcher.Constraint("Tangent", 80, 1, 81, 1))
sketch1.addConstraint(Sketcher.Constraint("Tangent", 81, 2, 74, 2))
sketch1.addConstraint(Sketcher.Constraint("Vertical", 0))
sketch1.addConstraint(Sketcher.Constraint("Horizontal", 1))
sketch1.addConstraint(Sketcher.Constraint("Vertical", 2))
sketch1.addConstraint(Sketcher.Constraint("Horizontal", 3))
sketch1.addConstraint(Sketcher.Constraint("Vertical", 4))
sketch1.addConstraint(Sketcher.Constraint("Vertical", 6))
sketch1.addConstraint(Sketcher.Constraint("Horizontal", 9))
sketch1.addConstraint(Sketcher.Constraint("Vertical", 10))
sketch1.addConstraint(Sketcher.Constraint("Vertical", 13))
sketch1.addConstraint(Sketcher.Constraint("Vertical", 15))
sketch1.addConstraint(Sketcher.Constraint("Horizontal", 16))
sketch1.addConstraint(Sketcher.Constraint("Vertical", 19))
sketch1.addConstraint(Sketcher.Constraint("Vertical", 21))
sketch1.addConstraint(Sketcher.Constraint("Horizontal", 23))
sketch1.addConstraint(Sketcher.Constraint("Vertical", 25))
sketch1.addConstraint(Sketcher.Constraint("Horizontal", 26))
sketch1.addConstraint(Sketcher.Constraint("Vertical", 28))
sketch1.addConstraint(Sketcher.Constraint("Horizontal", 30))
sketch1.addConstraint(Sketcher.Constraint("Vertical", 31))
sketch1.addConstraint(Sketcher.Constraint("Horizontal", 33))
sketch1.addConstraint(Sketcher.Constraint("Vertical", 35))
sketch1.addConstraint(Sketcher.Constraint("Horizontal", 36))
sketch1.addConstraint(Sketcher.Constraint("Vertical", 37))
sketch1.addConstraint(Sketcher.Constraint("Horizontal", 38))
sketch1.addConstraint(Sketcher.Constraint("Vertical", 39))
sketch1.addConstraint(Sketcher.Constraint("Horizontal", 41))
sketch1.addConstraint(Sketcher.Constraint("Vertical", 43))
sketch1.addConstraint(Sketcher.Constraint("Horizontal", 44))
sketch1.addConstraint(Sketcher.Constraint("Vertical", 46))
sketch1.addConstraint(Sketcher.Constraint("Horizontal", 48))
sketch1.addConstraint(Sketcher.Constraint("Vertical", 49))
sketch1.addConstraint(Sketcher.Constraint("Horizontal", 51))
sketch1.addConstraint(Sketcher.Constraint("Vertical", 53))
sketch1.addConstraint(Sketcher.Constraint("Horizontal", 55))
sketch1.addConstraint(Sketcher.Constraint("Vertical", 57))
sketch1.addConstraint(Sketcher.Constraint("Horizontal", 58))
sketch1.addConstraint(Sketcher.Constraint("Vertical", 60))
sketch1.addConstraint(Sketcher.Constraint("Horizontal", 62))
sketch1.addConstraint(Sketcher.Constraint("Vertical", 63))
sketch1.addConstraint(Sketcher.Constraint("Horizontal", 65))
sketch1.addConstraint(Sketcher.Constraint("Vertical", 67))
sketch1.addConstraint(Sketcher.Constraint("Horizontal", 69))
sketch1.addConstraint(Sketcher.Constraint("Vertical", 71))
sketch1.addConstraint(Sketcher.Constraint("Horizontal", 73))
sketch1.addConstraint(Sketcher.Constraint("Vertical", 75))
sketch1.addConstraint(Sketcher.Constraint("Horizontal", 77))
sketch1.addConstraint(Sketcher.Constraint("Vertical", 79))
sketch1.addConstraint(Sketcher.Constraint("Horizontal", 81))
sketch1.addConstraint(Sketcher.Constraint("Equal", 7, 11))
sketch1.addConstraint(Sketcher.Constraint("Equal", 11, 14))
sketch1.addConstraint(Sketcher.Constraint("Equal", 8, 17))
sketch1.addConstraint(Sketcher.Constraint("Equal", 14, 18))
sketch1.addConstraint(Sketcher.Constraint("Equal", 20, 22))
sketch1.addConstraint(Sketcher.Constraint("Equal", 22, 24))
sketch1.addConstraint(Sketcher.Constraint("Equal", 24, 27))
sketch1.addConstraint(Sketcher.Constraint("Equal", 27, 29))
sketch1.addConstraint(Sketcher.Constraint("Equal", 29, 32))
sketch1.addConstraint(Sketcher.Constraint("Equal", 34, 40))
sketch1.addConstraint(Sketcher.Constraint("Equal", 40, 42))
sketch1.addConstraint(Sketcher.Constraint("Equal", 42, 45))
sketch1.addConstraint(Sketcher.Constraint("Equal", 45, 47))
sketch1.addConstraint(Sketcher.Constraint("Equal", 50, 52))
sketch1.addConstraint(Sketcher.Constraint("Equal", 52, 54))
sketch1.addConstraint(Sketcher.Constraint("Equal", 54, 56))
sketch1.addConstraint(Sketcher.Constraint("Equal", 47, 59))
sketch1.addConstraint(Sketcher.Constraint("Equal", 59, 61))
sketch1.addConstraint(Sketcher.Constraint("Equal", 61, 64))
sketch1.addConstraint(Sketcher.Constraint("Equal", 56, 66))
sketch1.addConstraint(Sketcher.Constraint("Equal", 66, 68))
sketch1.addConstraint(Sketcher.Constraint("Equal", 68, 70))
sketch1.addConstraint(Sketcher.Constraint("Equal", 70, 72))
sketch1.addConstraint(Sketcher.Constraint("Equal", 72, 74))
sketch1.addConstraint(Sketcher.Constraint("Equal", 74, 76))
sketch1.addConstraint(Sketcher.Constraint("Equal", 76, 78))
sketch1.addConstraint(Sketcher.Constraint("Equal", 78, 80))
sketch1.addConstraint(Sketcher.Constraint("Perpendicular", 5, 12))
sketch1.addConstraint(Sketcher.Constraint("Horizontal", 11, 3, 14, 3))
sketch1.addConstraint(Sketcher.Constraint("Horizontal", 8, 3, 17, 3))
sketch1.addConstraint(Sketcher.Constraint("Horizontal", 7, 3, 18, 3))
sketch1.addConstraint(Sketcher.Constraint("Horizontal", 52, 3, 66, 3))
sketch1.addConstraint(Sketcher.Constraint("Horizontal", 56, 3, 68, 3))
sketch1.addConstraint(Sketcher.Constraint("Horizontal", 72, 3, 74, 3))
sketch1.addConstraint(Sketcher.Constraint("Horizontal", 70, 3, 76, 3))
sketch1.addConstraint(Sketcher.Constraint("Horizontal", 4, 2, 12, 2))
sketch1.addConstraint(Sketcher.Constraint("Horizontal", 9, 2, 15, 2))
sketch1.addConstraint(Sketcher.Constraint("Horizontal", 5, 2, 19, 2))
sketch1.addConstraint(Sketcher.Constraint("Vertical", 24, 3, 32, 3))
sketch1.addConstraint(Sketcher.Constraint("Vertical", 34, 3, 40, 3))
sketch1.addConstraint(Sketcher.Constraint("Vertical", 50, 3, 56, 3))
sketch1.addConstraint(Sketcher.Constraint("Vertical", 47, 3, 59, 3))
sketch1.addConstraint(Sketcher.Constraint("Vertical", 42, 3, 64, 3))
sketch1.addConstraint(Sketcher.Constraint("Vertical", 18, 3, 17, 1))
sketch1.addConstraint(Sketcher.Constraint("Vertical", 16, 2, 42, 1))
sketch1.addConstraint(Sketcher.Constraint("Vertical", 43, 2, 48, 2))
sketch1.addConstraint(Sketcher.Constraint("Vertical", 21, 2, 78, 1))
sketch1.addConstraint(Sketcher.Constraint("Equal", 9, 16))
sketch1.addConstraint(Sketcher.Constraint("Equal", 73, 77))
sketch1.addConstraint(Sketcher.Constraint("Equal", 65, 25))
sketch1.addConstraint(Sketcher.Constraint("Equal", 33, 28))
sketch1.addConstraint(Sketcher.Constraint("Equal", 25, 31))
sketch1.addConstraint(Sketcher.Constraint("Equal", 35, 39))
sketch1.addConstraint(Sketcher.Constraint("Equal", 49, 57))
sketch1.addConstraint(Sketcher.Constraint("Equal", 46, 60))
sketch1.addConstraint(Sketcher.Constraint("Equal", 43, 63))
sketch1.addConstraint(Sketcher.Constraint("Equal", 5, 12))
sketch1.addConstraint(Sketcher.Constraint("Radius", 34, Q("4 mm")))
sketch1.addConstraint(Sketcher.Constraint("Radius", 50, Q("12 mm")))
sketch1.addConstraint(Sketcher.Constraint("Radius", 7, Q("7.5 mm")))
sketch1.addConstraint(Sketcher.Constraint("DistanceX", 1, 2, 1, 1, Q("500 mm")))
sketch1.addConstraint(Sketcher.Constraint("DistanceX", 36, 2, 36, 1, Q("75 mm")))
sketch1.addConstraint(Sketcher.Constraint("DistanceY", 0, 1, 0, 2, Q("350 mm")))
sketch1.addConstraint(Sketcher.Constraint("DistanceY", 10, 2, 10, 1, Q("25 mm")))
sketch1.addConstraint(Sketcher.Constraint("DistanceY", 37, 2, 37, 1, Q("120 mm")))
sketch1.addConstraint(Sketcher.Constraint("DistanceY", 46, 2, 46, 1, Q("7 mm")))
sketch1.addConstraint(Sketcher.Constraint("Radius", 20, Q("8 mm")))
sketch1.addConstraint(Sketcher.Constraint("DistanceX", 23, 2, 23, 1, Q("24 mm")))
sketch1.addConstraint(Sketcher.Constraint("DistanceX", 26, 2, 26, 1, Q("102 mm")))
sketch1.addConstraint(Sketcher.Constraint("DistanceX", 41, 1, 41, 2, Q("32 mm")))
sketch1.addConstraint(Sketcher.Constraint("DistanceX", 44, 1, 44, 2, Q("11 mm")))
sketch1.addConstraint(Sketcher.Constraint("DistanceX", 51, 2, 51, 1, Q("121 mm")))
sketch1.addConstraint(Sketcher.Constraint("DistanceX", 69, 1, 69, 2, Q("111 mm")))
sketch1.addConstraint(Sketcher.Constraint("DistanceY", 35, 1, 35, 2, Q("36 mm")))
sketch1.addConstraint(Sketcher.Constraint("DistanceY", 53, 1, 53, 2, Q("156 mm")))
sketch1.addConstraint(Sketcher.Constraint("DistanceX", 9, 2, 9, 1, Q("92.5 mm")))
sketch1.addConstraint(Sketcher.Constraint("DistanceY", 43, 2, 43, 1, Q("8.5 mm")))
sketch1.addConstraint(Sketcher.Constraint("Radius", 8, Q("217.1685 mm")))
sketch1.addConstraint(Sketcher.Constraint("DistanceY", 4, 1, 4, 2, Q("22.861 mm")))
sketch1.addConstraint(Sketcher.Constraint("DistanceY", 6, 1, 6, 2, Q("22.139 mm")))
sketch1.addConstraint(Sketcher.Constraint("DistanceX", -1, 1, 17, 3, Q("324.45 mm")))
sketch1.addConstraint(Sketcher.Constraint("DistanceX", -1, 1, 0, 2, Q("516.315 mm")))
sketch1.addConstraint(Sketcher.Constraint("Distance", 5, Q("38.8909 mm")))
sketch1.addConstraint(Sketcher.Constraint("DistanceX", -1, 1, 7, 3, Q("46.6957 mm")))
sketch1.addConstraint(Sketcher.Constraint("DistanceY", -1, 1, 7, 3, Q("115.3063 mm")))
sketch1.addConstraint(Sketcher.Constraint("DistanceX", -1, 1, 20, 3, Q("476.1957 mm")))
sketch1.addConstraint(Sketcher.Constraint("DistanceY", -1, 1, 20, 3, Q("124.8063 mm")))
sketch1.addConstraint(Sketcher.Constraint("DistanceY", -1, 1, 34, 3, Q("251.8063 mm")))
sketch1.addConstraint(Sketcher.Constraint("DistanceX", -1, 1, 66, 3, Q("216.1957 mm")))
sketch1.addConstraint(Sketcher.Constraint("DistanceY", -1, 1, 0, 2, Q("345.8063 mm")))
sketch1.setExpression("Constraints[187]", "Params.sketch1_radius")
sketch1.setExpression("Constraints[188]", "Params.sketch1_radius2")
sketch1.setExpression("Constraints[189]", "Params.sketch1_radius3")
sketch1.setExpression("Constraints[190]", "Params.sketch1_width")
sketch1.setExpression("Constraints[191]", "Params.sketch1_width2")
pad1 = doc.addObject("PartDesign::Pad", "Pad")
body.addObject(pad1)
pad1.Profile = sketch1
pad1.setExpression("Length", "Params.pad1_length")

doc.recompute()
